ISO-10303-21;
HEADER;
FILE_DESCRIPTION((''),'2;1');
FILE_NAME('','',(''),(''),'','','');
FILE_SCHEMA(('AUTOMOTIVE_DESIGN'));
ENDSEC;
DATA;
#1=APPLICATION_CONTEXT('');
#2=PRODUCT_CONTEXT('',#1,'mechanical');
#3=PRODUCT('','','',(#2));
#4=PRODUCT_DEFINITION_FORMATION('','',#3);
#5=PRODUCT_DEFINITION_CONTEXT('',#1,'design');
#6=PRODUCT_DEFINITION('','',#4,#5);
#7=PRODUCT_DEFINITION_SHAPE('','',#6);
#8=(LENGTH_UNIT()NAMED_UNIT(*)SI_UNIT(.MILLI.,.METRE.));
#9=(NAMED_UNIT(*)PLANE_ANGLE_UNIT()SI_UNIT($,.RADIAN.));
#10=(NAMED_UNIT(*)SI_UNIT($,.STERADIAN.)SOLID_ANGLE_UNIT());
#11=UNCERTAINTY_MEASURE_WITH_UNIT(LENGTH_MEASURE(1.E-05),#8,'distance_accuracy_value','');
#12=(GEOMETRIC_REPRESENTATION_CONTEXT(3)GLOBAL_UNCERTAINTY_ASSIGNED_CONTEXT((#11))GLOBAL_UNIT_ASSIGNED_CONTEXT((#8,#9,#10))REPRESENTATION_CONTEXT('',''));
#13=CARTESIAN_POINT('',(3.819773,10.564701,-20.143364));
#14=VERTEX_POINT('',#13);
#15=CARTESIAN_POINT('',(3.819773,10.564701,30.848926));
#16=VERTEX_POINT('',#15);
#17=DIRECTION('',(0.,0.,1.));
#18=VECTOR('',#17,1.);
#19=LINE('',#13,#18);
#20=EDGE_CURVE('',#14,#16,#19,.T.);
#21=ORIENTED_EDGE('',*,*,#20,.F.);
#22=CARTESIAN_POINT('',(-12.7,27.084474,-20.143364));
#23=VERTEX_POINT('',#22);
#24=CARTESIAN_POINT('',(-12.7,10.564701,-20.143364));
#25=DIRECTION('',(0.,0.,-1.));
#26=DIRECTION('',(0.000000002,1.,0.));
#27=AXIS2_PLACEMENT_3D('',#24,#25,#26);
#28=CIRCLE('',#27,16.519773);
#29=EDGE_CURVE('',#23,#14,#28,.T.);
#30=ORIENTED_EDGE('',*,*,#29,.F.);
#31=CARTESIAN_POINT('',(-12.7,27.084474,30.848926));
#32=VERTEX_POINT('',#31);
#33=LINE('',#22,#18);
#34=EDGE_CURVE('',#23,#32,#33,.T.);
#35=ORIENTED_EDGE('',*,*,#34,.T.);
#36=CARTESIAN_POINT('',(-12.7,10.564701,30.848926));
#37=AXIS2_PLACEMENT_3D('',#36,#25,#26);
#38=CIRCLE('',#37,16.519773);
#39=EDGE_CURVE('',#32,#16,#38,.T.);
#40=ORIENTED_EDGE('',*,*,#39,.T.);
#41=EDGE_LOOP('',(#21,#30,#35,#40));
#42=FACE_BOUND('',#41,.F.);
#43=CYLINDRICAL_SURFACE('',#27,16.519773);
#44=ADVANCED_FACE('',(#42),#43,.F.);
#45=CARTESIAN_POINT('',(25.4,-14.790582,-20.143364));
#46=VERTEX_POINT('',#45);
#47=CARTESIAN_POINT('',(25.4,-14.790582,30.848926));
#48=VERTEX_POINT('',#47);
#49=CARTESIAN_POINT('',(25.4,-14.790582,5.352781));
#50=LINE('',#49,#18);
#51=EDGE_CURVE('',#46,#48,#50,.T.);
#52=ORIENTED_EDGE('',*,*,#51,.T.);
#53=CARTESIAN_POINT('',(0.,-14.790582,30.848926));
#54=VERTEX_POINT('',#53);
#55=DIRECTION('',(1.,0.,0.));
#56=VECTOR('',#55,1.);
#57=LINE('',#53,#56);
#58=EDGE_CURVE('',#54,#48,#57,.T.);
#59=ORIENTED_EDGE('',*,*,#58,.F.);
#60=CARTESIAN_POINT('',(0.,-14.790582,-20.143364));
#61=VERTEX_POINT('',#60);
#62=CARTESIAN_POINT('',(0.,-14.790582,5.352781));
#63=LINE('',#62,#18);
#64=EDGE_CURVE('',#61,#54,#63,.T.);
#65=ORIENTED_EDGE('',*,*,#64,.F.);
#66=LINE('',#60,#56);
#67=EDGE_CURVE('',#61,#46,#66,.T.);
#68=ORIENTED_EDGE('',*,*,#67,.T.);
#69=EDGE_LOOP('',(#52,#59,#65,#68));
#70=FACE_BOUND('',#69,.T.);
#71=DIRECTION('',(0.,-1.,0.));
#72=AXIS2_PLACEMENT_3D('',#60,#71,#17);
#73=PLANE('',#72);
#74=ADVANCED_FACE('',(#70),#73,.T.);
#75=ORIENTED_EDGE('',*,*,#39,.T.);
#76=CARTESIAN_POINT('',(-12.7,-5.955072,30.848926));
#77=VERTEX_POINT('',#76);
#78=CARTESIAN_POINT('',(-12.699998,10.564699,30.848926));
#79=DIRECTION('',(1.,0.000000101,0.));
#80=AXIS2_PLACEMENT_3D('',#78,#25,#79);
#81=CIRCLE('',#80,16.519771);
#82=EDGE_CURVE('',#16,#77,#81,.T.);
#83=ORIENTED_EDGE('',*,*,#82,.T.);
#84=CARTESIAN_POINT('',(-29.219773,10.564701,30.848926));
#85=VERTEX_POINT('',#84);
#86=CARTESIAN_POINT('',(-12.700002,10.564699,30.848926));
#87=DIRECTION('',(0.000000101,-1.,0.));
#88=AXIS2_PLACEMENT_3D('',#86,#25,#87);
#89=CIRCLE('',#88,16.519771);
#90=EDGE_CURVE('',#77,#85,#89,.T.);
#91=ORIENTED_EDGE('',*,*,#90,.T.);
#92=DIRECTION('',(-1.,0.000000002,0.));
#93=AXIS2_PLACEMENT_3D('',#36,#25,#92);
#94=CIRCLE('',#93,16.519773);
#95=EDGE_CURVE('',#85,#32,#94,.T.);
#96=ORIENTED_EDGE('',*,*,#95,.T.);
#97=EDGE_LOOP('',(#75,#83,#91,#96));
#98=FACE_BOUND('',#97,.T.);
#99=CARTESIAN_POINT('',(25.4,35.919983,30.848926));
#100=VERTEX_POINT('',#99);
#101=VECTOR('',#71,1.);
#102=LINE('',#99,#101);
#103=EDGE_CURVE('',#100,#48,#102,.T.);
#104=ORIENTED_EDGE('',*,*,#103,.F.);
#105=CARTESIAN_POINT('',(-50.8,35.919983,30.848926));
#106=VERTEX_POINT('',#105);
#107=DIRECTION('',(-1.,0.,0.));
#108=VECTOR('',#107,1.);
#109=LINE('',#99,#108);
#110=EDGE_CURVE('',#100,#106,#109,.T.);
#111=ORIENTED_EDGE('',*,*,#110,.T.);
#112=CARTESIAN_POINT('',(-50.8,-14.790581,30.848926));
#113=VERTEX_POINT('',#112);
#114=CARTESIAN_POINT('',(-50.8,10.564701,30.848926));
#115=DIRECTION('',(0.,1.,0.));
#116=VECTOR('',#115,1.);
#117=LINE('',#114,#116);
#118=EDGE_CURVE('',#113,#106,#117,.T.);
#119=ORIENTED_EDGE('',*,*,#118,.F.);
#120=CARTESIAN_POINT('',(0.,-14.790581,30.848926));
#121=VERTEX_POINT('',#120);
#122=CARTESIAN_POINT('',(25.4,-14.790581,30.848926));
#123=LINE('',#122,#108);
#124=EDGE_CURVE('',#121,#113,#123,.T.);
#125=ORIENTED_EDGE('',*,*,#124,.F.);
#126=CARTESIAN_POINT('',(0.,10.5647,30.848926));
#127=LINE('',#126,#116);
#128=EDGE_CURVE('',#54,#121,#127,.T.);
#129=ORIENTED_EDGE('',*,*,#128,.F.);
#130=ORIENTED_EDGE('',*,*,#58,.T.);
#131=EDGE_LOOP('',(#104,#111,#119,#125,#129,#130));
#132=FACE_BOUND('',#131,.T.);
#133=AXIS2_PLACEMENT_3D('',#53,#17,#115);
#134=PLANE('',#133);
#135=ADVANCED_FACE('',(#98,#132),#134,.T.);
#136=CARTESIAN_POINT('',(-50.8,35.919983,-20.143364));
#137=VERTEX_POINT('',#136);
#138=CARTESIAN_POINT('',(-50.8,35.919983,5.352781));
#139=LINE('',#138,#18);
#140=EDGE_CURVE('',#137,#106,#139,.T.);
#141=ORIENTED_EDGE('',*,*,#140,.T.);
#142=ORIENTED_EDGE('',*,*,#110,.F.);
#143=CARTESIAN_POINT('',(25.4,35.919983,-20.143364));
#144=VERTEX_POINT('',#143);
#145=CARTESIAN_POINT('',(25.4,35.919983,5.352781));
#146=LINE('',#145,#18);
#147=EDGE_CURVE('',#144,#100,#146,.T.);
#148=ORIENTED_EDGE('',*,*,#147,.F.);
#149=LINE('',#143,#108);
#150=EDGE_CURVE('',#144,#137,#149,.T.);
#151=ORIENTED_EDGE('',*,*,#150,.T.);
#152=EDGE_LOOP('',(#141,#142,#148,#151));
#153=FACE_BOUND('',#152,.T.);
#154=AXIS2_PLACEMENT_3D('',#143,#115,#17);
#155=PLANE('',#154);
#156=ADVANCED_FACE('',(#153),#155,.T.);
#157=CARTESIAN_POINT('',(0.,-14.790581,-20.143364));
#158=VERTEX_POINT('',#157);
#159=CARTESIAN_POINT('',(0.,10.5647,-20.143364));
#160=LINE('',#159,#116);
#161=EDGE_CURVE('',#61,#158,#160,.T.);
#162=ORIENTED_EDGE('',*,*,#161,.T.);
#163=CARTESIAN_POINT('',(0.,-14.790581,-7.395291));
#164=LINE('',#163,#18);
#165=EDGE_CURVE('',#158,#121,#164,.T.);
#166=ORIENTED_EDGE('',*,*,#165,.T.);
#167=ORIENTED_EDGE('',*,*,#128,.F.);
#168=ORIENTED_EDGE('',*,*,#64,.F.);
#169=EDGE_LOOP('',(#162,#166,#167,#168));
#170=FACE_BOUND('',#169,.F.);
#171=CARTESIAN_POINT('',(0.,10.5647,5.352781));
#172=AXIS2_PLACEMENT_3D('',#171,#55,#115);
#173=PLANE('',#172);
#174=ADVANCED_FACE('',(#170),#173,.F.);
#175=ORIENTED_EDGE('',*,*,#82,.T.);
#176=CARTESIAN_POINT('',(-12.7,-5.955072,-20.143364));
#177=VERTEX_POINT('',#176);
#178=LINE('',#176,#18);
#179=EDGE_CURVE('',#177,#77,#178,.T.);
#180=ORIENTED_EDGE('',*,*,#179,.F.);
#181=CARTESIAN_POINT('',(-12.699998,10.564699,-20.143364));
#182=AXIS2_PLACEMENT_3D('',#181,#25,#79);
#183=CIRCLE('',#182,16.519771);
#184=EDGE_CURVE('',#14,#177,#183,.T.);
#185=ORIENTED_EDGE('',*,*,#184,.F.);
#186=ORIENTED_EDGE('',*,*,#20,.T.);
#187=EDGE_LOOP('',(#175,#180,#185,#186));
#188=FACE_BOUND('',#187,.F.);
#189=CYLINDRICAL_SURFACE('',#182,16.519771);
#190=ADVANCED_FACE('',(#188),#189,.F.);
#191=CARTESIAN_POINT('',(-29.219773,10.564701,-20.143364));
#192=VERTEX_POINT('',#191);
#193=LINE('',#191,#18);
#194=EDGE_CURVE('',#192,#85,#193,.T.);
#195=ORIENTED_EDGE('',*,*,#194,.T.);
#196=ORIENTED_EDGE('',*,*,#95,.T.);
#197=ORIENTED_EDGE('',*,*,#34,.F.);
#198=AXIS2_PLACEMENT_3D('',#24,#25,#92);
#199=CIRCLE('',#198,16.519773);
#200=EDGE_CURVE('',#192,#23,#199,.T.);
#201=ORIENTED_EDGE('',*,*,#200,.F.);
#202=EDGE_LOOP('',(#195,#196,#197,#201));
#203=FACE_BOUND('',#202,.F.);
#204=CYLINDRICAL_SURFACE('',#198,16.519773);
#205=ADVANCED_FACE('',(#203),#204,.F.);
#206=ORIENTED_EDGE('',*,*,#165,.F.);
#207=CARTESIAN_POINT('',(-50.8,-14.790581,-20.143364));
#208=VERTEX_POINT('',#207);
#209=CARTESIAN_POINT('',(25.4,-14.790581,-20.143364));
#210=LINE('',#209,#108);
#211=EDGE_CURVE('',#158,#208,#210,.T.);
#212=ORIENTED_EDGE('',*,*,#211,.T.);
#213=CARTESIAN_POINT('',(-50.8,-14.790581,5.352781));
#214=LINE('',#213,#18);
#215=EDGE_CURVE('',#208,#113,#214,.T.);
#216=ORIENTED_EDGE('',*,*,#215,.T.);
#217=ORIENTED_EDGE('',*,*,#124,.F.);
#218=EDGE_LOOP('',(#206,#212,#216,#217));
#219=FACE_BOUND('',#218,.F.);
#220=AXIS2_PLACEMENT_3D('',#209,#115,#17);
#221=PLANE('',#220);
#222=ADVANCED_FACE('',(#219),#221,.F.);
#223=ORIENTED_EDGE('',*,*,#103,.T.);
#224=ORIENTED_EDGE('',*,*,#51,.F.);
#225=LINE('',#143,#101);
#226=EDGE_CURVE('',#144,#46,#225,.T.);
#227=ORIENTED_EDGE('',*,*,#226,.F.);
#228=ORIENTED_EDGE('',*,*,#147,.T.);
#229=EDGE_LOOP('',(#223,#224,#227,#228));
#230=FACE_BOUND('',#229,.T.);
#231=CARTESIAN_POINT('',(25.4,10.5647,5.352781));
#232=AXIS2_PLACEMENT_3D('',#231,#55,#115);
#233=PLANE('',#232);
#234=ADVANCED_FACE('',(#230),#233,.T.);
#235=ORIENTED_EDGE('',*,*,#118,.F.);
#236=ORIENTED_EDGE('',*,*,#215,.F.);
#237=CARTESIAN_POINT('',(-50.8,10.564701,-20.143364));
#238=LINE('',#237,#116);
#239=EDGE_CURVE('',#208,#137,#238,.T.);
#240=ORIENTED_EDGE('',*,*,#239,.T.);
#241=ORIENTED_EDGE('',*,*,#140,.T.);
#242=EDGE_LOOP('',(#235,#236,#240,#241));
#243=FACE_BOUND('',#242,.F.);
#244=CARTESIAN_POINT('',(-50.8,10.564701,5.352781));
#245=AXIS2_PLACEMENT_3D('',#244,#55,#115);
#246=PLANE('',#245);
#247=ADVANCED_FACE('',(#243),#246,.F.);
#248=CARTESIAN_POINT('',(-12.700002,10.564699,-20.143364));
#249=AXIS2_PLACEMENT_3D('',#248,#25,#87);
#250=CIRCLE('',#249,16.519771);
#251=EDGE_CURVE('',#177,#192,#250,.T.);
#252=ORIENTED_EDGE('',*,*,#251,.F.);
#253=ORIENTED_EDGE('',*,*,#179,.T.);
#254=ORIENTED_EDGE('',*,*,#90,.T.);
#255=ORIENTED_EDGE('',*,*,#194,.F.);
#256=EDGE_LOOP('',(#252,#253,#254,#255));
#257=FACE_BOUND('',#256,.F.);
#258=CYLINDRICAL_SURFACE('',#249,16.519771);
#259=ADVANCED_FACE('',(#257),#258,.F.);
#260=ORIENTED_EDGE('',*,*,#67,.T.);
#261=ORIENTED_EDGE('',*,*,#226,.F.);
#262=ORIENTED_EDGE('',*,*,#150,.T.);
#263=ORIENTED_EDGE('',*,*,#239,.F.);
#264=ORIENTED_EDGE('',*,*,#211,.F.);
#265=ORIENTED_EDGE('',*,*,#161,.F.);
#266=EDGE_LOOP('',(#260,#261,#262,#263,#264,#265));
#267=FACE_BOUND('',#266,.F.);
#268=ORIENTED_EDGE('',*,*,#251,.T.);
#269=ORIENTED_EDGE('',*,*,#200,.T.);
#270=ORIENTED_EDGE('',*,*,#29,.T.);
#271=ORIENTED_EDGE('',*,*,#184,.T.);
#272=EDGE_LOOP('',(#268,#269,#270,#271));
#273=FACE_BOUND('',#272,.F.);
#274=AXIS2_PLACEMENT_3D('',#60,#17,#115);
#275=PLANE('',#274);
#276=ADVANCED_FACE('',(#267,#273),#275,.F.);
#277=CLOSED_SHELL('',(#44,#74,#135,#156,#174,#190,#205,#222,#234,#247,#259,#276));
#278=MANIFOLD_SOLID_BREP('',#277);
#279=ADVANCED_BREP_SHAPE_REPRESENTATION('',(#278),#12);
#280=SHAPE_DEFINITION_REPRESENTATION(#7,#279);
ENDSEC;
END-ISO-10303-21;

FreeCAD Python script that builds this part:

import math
import FreeCAD as App
import Part
import Sketcher
from FreeCAD import Vector
Q = App.Units.Quantity


def add_polygon(sketch, points):
    """Adds a closed chain of lines whose ends are joined by coincident constraints."""
    first, n = sketch.GeometryCount, len(points)
    for a, b in zip(points, points[1:] + points[:1]):
        sketch.addGeometry(Part.LineSegment(App.Vector(*a, 0), App.Vector(*b, 0)), False)
    for i in range(n):
        sketch.addConstraint(Sketcher.Constraint("Coincident", first + i, 2, first + (i + 1) % n, 1))

doc = App.newDocument("Part")
body = doc.addObject("PartDesign::Body", "Body")

# Sketch on YZ plane
sketch1 = body.newObject("Sketcher::SketchObject", "Sketch")
sketch1.AttachmentSupport = (doc.getObject("YZ_Plane"), [""])
sketch1.MapMode = "FlatFace"
add_polygon(sketch1, [(-14.790582, 30.848926), (-14.790582, -20.143364), (35.919983, -20.143364), (35.919983, 30.848926)])  # lines 0-3
sketch1.addConstraint([
    Sketcher.Constraint("Vertical", 0),
    Sketcher.Constraint("Horizontal", 1),
    Sketcher.Constraint("Vertical", 2),
    Sketcher.Constraint("Horizontal", 3),
    Sketcher.Constraint("DistanceY", 0, 2, 0, 1, 50.99229),
    Sketcher.Constraint("DistanceX", 1, 1, 1, 2, 50.710565),
    Sketcher.Constraint("DistanceX", 0, 2, -1, 1, 14.790582),
    Sketcher.Constraint("DistanceY", 0, 2, -1, 1, 20.143364),
])
pad1 = body.newObject("PartDesign::Pad", "Pad")
pad1.Profile = sketch1
pad1.Length = Q("1 in")

# Sketch on YZ plane
sketch2 = body.newObject("Sketcher::SketchObject", "Sketch001")
sketch2.AttachmentSupport = (doc.getObject("YZ_Plane"), [""])
sketch2.MapMode = "FlatFace"
sketch2.AttachmentOffset = App.Placement(Vector(0, 0, 1 * 25.4), App.Rotation())
add_polygon(sketch2, [(-14.790581, 30.848926), (-14.790581, -20.143364), (35.919983, -20.143364), (35.919983, 30.848926)])  # lines 0-3
sketch2.addConstraint([
    Sketcher.Constraint("Vertical", 0),
    Sketcher.Constraint("Horizontal", 1),
    Sketcher.Constraint("Vertical", 2),
    Sketcher.Constraint("Horizontal", 3),
    Sketcher.Constraint("DistanceY", 0, 2, 0, 1, 50.99229),
    Sketcher.Constraint("DistanceX", 1, 1, 1, 2, 50.710564),
    Sketcher.Constraint("DistanceX", 0, 2, -1, 1, 14.790581),
    Sketcher.Constraint("DistanceY", 0, 2, -1, 1, 20.143364),
])
pad2 = body.newObject("PartDesign::Pad", "Pad001")
pad2.Profile = sketch2
pad2.Length = Q("3 in")
pad2.Reversed = True

# Sketch on XY plane
sketch3 = body.newObject("Sketcher::SketchObject", "Sketch002")
sketch3.AttachmentSupport = (doc.getObject("XY_Plane"), [""])
sketch3.MapMode = "FlatFace"
sketch3.AttachmentOffset = App.Placement(Vector(0, 0, -20.143364), App.Rotation())
sketch3.addGeometry([
    Part.ArcOfCircle(Part.Circle(Vector(-12.699998, 10.564699, 0), Vector(0, 0, 1), 16.519771), math.radians(-90.000006), math.radians(0.000006)),
    Part.ArcOfCircle(Part.Circle(Vector(-12.700002, 10.564699, 0), Vector(0, 0, 1), 16.519771), math.radians(179.999994), math.radians(270.000006)),
    Part.ArcOfCircle(Part.Circle(Vector(-12.7, 10.564701, 0), Vector(0, 0, 1), 16.519773), math.radians(90), math.radians(180)),
    Part.ArcOfCircle(Part.Circle(Vector(-12.7, 10.564701, 0), Vector(0, 0, 1), 16.519773), math.radians(0), math.radians(90)),
], False)
sketch3.addConstraint([
    Sketcher.Constraint("Tangent", 0, 1, 1, 2),
    Sketcher.Constraint("Tangent", 1, 1, 2, 2),
    Sketcher.Constraint("Tangent", 2, 1, 3, 2),
    Sketcher.Constraint("Tangent", 3, 1, 0, 2),
    Sketcher.Constraint("Equal", 0, 1),
    Sketcher.Constraint("Horizontal", 3, 3, 1, 1),
    Sketcher.Constraint("Horizontal", 1, 1, 3, 1),
    Sketcher.Constraint("Vertical", 3, 3, 0, 1),
    Sketcher.Constraint("Vertical", 0, 1, 2, 1),
    Sketcher.Constraint("DistanceX", 0, 3, -1, 1, Q("0.4999999 in")),
    Sketcher.Constraint("Radius", 0, 16.519771),
    Sketcher.Constraint("DistanceY", -1, 1, 0, 3, 10.564699),
])
pocket1 = body.newObject("PartDesign::Pocket", "Pocket")
pocket1.Profile = sketch3
pocket1.Length = Q("3 in")
pocket1.Reversed = True

doc.recompute()
